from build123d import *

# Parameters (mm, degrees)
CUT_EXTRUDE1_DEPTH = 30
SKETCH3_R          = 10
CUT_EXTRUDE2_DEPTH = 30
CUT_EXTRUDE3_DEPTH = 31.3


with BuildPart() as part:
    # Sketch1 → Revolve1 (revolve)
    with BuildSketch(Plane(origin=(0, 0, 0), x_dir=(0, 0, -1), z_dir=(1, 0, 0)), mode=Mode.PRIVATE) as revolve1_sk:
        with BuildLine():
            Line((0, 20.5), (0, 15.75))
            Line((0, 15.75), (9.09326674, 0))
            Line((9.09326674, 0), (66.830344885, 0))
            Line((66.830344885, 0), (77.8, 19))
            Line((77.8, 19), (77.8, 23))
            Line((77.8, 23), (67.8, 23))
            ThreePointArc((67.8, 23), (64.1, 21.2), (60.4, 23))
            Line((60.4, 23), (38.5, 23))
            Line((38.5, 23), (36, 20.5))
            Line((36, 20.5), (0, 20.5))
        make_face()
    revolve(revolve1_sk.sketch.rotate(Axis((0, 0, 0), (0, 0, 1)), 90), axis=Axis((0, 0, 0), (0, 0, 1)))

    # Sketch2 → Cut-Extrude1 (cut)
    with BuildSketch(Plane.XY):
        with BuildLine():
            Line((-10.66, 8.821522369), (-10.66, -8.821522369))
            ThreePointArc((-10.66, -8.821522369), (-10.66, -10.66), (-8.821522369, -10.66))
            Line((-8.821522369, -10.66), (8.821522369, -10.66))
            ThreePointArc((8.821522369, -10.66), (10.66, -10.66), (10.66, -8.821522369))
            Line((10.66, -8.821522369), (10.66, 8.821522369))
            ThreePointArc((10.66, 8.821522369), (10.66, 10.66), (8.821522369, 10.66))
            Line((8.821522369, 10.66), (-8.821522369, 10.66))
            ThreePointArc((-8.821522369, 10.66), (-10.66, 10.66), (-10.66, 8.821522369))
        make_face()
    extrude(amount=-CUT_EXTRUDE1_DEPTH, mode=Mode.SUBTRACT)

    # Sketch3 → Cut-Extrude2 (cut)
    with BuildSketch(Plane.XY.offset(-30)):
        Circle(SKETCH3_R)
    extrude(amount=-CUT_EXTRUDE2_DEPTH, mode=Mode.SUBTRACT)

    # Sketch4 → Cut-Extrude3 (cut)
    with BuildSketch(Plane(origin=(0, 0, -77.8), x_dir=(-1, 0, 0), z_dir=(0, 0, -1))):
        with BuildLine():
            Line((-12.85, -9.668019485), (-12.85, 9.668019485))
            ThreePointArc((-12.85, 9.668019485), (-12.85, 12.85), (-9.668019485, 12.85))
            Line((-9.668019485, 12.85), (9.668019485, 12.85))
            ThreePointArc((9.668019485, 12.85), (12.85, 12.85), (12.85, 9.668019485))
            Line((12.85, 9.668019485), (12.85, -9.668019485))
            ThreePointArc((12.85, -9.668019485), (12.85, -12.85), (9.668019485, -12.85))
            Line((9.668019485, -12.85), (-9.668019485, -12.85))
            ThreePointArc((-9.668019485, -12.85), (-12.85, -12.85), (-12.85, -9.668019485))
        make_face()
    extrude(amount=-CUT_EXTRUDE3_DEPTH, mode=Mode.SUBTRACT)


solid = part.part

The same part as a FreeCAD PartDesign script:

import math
import FreeCAD as App
import Part
import Sketcher
Q = App.Units.Quantity

doc = App.newDocument("Part")
body = doc.addObject("PartDesign::Body", "Body")

sketch1 = body.newObject("Sketcher::SketchObject", "Sketch")
sketch1.AttachmentSupport = (doc.getObject("YZ_Plane"), [""])
sketch1.MapMode = "FlatFace"
sketch1.addGeometry([
    Part.LineSegment(App.Vector(20.5, 0, 0), App.Vector(15.8, 0, 0)),
    Part.LineSegment(App.Vector(15.8, 0, 0), App.Vector(0, -9.1, 0)),
    Part.LineSegment(App.Vector(0, -9.1, 0), App.Vector(0, -66.8, 0)),
    Part.LineSegment(App.Vector(0, -66.8, 0), App.Vector(19, -77.8, 0)),
    Part.LineSegment(App.Vector(19, -77.8, 0), App.Vector(23, -77.8, 0)),
    Part.LineSegment(App.Vector(23, -77.8, 0), App.Vector(23, -67.8, 0)),
    Part.ArcOfCircle(Part.Circle(App.Vector(25.9, -64.1, 0), App.Vector(0, 0, 1), 4.7), math.radians(128), math.radians(232)),
    Part.LineSegment(App.Vector(23, -60.4, 0), App.Vector(23, -38.5, 0)),
    Part.LineSegment(App.Vector(23, -38.5, 0), App.Vector(20.5, -36, 0)),
    Part.LineSegment(App.Vector(20.5, -36, 0), App.Vector(20.5, 0, 0)),
], False)
sketch1.addConstraint([
    Sketcher.Constraint("Coincident", 0, 2, 1, 1),
    Sketcher.Constraint("Coincident", 1, 2, 2, 1),
    Sketcher.Constraint("Coincident", 2, 2, 3, 1),
    Sketcher.Constraint("Coincident", 3, 2, 4, 1),
    Sketcher.Constraint("Coincident", 4, 2, 5, 1),
    Sketcher.Constraint("Coincident", 5, 2, 6, 2),
    Sketcher.Constraint("Coincident", 6, 1, 7, 1),
    Sketcher.Constraint("Coincident", 7, 2, 8, 1),
    Sketcher.Constraint("Coincident", 8, 2, 9, 1),
    Sketcher.Constraint("Coincident", 9, 2, 0, 1),
    Sketcher.Constraint("Horizontal", 0),
    Sketcher.Constraint("Vertical", 2),
    Sketcher.Constraint("Horizontal", 4),
    Sketcher.Constraint("Vertical", 5),
    Sketcher.Constraint("Vertical", 7),
    Sketcher.Constraint("Vertical", 9),
    Sketcher.Constraint("PointOnObject", 0, 2, -1),
    Sketcher.Constraint("PointOnObject", 1, 2, -2),
    Sketcher.Constraint("Vertical", 5, 2, 6, 1),
    Sketcher.Constraint("DistanceX", 4, 1, 4, 2, 4.0),
    Sketcher.Constraint("DistanceY", 5, 1, 5, 2, 10.0),
    Sketcher.Constraint("DistanceY", 9, 1, 9, 2, 36.0),
    Sketcher.Constraint("Angle", 1, Q("-150 deg")),
    Sketcher.Constraint("Angle", 3, Q("-30 deg")),
    Sketcher.Constraint("Angle", 8, Q("135 deg")),
    Sketcher.Constraint("DistanceY", 7, 1, 7, 2, 21.9),
    Sketcher.Constraint("DistanceX", -1, 1, 3, 2, 19.0),
    Sketcher.Constraint("DistanceX", 0, 2, 0, 1, 4.75),
    Sketcher.Constraint("DistanceY", 6, 3, -1, 1, 64.1),
    Sketcher.Constraint("DistanceY", 3, 2, -1, 1, 77.8),
    Sketcher.Constraint("Radius", 6, 4.702778),
])
revolution = body.newObject("PartDesign::Revolution", "Revolution")
revolution.Profile = sketch1
revolution.ReferenceAxis = (sketch1, ["V_Axis"])
revolution.Angle = 360

sketch2 = body.newObject("Sketcher::SketchObject", "Sketch001")
sketch2.AttachmentSupport = (doc.getObject("XY_Plane"), [""])
sketch2.MapMode = "FlatFace"
sketch2.addGeometry([
    Part.LineSegment(App.Vector(-10.7, 8.8, 0), App.Vector(-10.7, -8.8, 0)),
    Part.ArcOfCircle(Part.Circle(App.Vector(-9.7, -9.7, 0), App.Vector(0, 0, 1), 1.3), math.radians(135), math.radians(315)),
    Part.LineSegment(App.Vector(-8.8, -10.7, 0), App.Vector(8.8, -10.7, 0)),
    Part.ArcOfCircle(Part.Circle(App.Vector(9.7, -9.7, 0), App.Vector(0, 0, 1), 1.3), math.radians(-135), math.radians(45)),
    Part.LineSegment(App.Vector(10.7, -8.8, 0), App.Vector(10.7, 8.8, 0)),
    Part.ArcOfCircle(Part.Circle(App.Vector(9.7, 9.7, 0), App.Vector(0, 0, 1), 1.3), math.radians(-45), math.radians(135)),
    Part.LineSegment(App.Vector(8.8, 10.7, 0), App.Vector(-8.8, 10.7, 0)),
    Part.ArcOfCircle(Part.Circle(App.Vector(-9.7, 9.7, 0), App.Vector(0, 0, 1), 1.3), math.radians(45), math.radians(225)),
], False)
sketch2.addConstraint([
    Sketcher.Constraint("Coincident", 0, 2, 1, 1),
    Sketcher.Constraint("Coincident", 1, 2, 2, 1),
    Sketcher.Constraint("Coincident", 2, 2, 3, 1),
    Sketcher.Constraint("Coincident", 3, 2, 4, 1),
    Sketcher.Constraint("Coincident", 4, 2, 5, 1),
    Sketcher.Constraint("Coincident", 5, 2, 6, 1),
    Sketcher.Constraint("Coincident", 6, 2, 7, 1),
    Sketcher.Constraint("Coincident", 7, 2, 0, 1),
    Sketcher.Constraint("Vertical", 0),
    Sketcher.Constraint("Horizontal", 2),
    Sketcher.Constraint("Vertical", 4),
    Sketcher.Constraint("Horizontal", 6),
    Sketcher.Constraint("Equal", 1, 3),
    Sketcher.Constraint("Equal", 3, 5),
    Sketcher.Constraint("Equal", 5, 7),
    Sketcher.Constraint("Symmetric", 1, 3, 5, 3, -1, 1),
    Sketcher.Constraint("Symmetric", 3, 3, 7, 3, -1, 1),
    Sketcher.Constraint("Symmetric", 1, 3, 3, 3, -2),
    Sketcher.Constraint("Horizontal", 0, 2, 3, 2),
    Sketcher.Constraint("Vertical", 2, 2, 5, 2),
    Sketcher.Constraint("Equal", 6, 0),
    Sketcher.Constraint("Radius", 1, 1.3),
    Sketcher.Constraint("DistanceX", 0, 2, -1, 1, 10.66),
    Sketcher.Constraint("DistanceY", 1, 2, -1, 1, 10.66),
    Sketcher.Constraint("DistanceX", 1, 3, -1, 1, 9.740761),
])
pocket1 = body.newObject("PartDesign::Pocket", "Pocket")
pocket1.Profile = sketch2
pocket1.Length = 30

sketch3 = body.newObject("Sketcher::SketchObject", "Sketch002")
sketch3.AttachmentSupport = (doc.getObject("XY_Plane"), [""])
sketch3.MapMode = "FlatFace"
sketch3.AttachmentOffset = App.Placement(App.Vector(0, 0, -30), App.Rotation())
sketch3.addGeometry(Part.Circle(App.Vector(0, 0, 0), App.Vector(0, 0, 1), 10), False)
sketch3.addConstraint([
    Sketcher.Constraint("Coincident", 0, 3, -1, 1),
    Sketcher.Constraint("Diameter", 0, 20.0),
])
pocket2 = body.newObject("PartDesign::Pocket", "Pocket001")
pocket2.Profile = sketch3
pocket2.Length = 30

sketch4 = body.newObject("Sketcher::SketchObject", "Sketch003")
sketch4.AttachmentSupport = (doc.getObject("XY_Plane"), [""])
sketch4.MapMode = "FlatFace"
sketch4.AttachmentOffset = App.Placement(App.Vector(0, 0, -77.8), App.Rotation())
sketch4.addGeometry([
    Part.LineSegment(App.Vector(12.8, 9.7, 0), App.Vector(12.8, -9.7, 0)),
    Part.ArcOfCircle(Part.Circle(App.Vector(11.3, -11.3, 0), App.Vector(0, 0, 1), 2.2), math.radians(-135), math.radians(45)),
    Part.LineSegment(App.Vector(9.7, -12.8, 0), App.Vector(-9.7, -12.8, 0)),
    Part.ArcOfCircle(Part.Circle(App.Vector(-11.3, -11.3, 0), App.Vector(0, 0, 1), 2.2), math.radians(135), math.radians(315)),
    Part.LineSegment(App.Vector(-12.8, -9.7, 0), App.Vector(-12.8, 9.7, 0)),
    Part.ArcOfCircle(Part.Circle(App.Vector(-11.3, 11.3, 0), App.Vector(0, 0, 1), 2.2), math.radians(45), math.radians(225)),
    Part.LineSegment(App.Vector(-9.7, 12.8, 0), App.Vector(9.7, 12.8, 0)),
    Part.ArcOfCircle(Part.Circle(App.Vector(11.3, 11.3, 0), App.Vector(0, 0, 1), 2.2), math.radians(-45), math.radians(135)),
], False)
sketch4.addConstraint([
    Sketcher.Constraint("Coincident", 0, 2, 1, 2),
    Sketcher.Constraint("Coincident", 1, 1, 2, 1),
    Sketcher.Constraint("Coincident", 2, 2, 3, 2),
    Sketcher.Constraint("Coincident", 3, 1, 4, 1),
    Sketcher.Constraint("Coincident", 4, 2, 5, 2),
    Sketcher.Constraint("Coincident", 5, 1, 6, 1),
    Sketcher.Constraint("Coincident", 6, 2, 7, 2),
    Sketcher.Constraint("Coincident", 7, 1, 0, 1),
    Sketcher.Constraint("Vertical", 0),
    Sketcher.Constraint("Horizontal", 2),
    Sketcher.Constraint("Vertical", 4),
    Sketcher.Constraint("Horizontal", 6),
    Sketcher.Constraint("Equal", 1, 3),
    Sketcher.Constraint("Equal", 3, 5),
    Sketcher.Constraint("Equal", 5, 7),
    Sketcher.Constraint("Symmetric", 1, 3, 5, 3, -1, 1),
    Sketcher.Constraint("Symmetric", 3, 3, 7, 3, -1, 1),
    Sketcher.Constraint("Symmetric", 1, 3, 3, 3, -2),
    Sketcher.Constraint("Horizontal", 0, 2, 3, 1),
    Sketcher.Constraint("Vertical", 2, 2, 5, 1),
    Sketcher.Constraint("Equal", 6, 0),
    Sketcher.Constraint("Radius", 1, 2.25),
    Sketcher.Constraint("DistanceX", -1, 1, 0, 2, 12.85),
    Sketcher.Constraint("DistanceY", 1, 1, -1, 1, 12.85),
    Sketcher.Constraint("DistanceX", -1, 1, 1, 3, 11.25901),
])
pocket3 = body.newObject("PartDesign::Pocket", "Pocket002")
pocket3.Profile = sketch4
pocket3.Length = 31.3
pocket3.Reversed = True

doc.recompute()
